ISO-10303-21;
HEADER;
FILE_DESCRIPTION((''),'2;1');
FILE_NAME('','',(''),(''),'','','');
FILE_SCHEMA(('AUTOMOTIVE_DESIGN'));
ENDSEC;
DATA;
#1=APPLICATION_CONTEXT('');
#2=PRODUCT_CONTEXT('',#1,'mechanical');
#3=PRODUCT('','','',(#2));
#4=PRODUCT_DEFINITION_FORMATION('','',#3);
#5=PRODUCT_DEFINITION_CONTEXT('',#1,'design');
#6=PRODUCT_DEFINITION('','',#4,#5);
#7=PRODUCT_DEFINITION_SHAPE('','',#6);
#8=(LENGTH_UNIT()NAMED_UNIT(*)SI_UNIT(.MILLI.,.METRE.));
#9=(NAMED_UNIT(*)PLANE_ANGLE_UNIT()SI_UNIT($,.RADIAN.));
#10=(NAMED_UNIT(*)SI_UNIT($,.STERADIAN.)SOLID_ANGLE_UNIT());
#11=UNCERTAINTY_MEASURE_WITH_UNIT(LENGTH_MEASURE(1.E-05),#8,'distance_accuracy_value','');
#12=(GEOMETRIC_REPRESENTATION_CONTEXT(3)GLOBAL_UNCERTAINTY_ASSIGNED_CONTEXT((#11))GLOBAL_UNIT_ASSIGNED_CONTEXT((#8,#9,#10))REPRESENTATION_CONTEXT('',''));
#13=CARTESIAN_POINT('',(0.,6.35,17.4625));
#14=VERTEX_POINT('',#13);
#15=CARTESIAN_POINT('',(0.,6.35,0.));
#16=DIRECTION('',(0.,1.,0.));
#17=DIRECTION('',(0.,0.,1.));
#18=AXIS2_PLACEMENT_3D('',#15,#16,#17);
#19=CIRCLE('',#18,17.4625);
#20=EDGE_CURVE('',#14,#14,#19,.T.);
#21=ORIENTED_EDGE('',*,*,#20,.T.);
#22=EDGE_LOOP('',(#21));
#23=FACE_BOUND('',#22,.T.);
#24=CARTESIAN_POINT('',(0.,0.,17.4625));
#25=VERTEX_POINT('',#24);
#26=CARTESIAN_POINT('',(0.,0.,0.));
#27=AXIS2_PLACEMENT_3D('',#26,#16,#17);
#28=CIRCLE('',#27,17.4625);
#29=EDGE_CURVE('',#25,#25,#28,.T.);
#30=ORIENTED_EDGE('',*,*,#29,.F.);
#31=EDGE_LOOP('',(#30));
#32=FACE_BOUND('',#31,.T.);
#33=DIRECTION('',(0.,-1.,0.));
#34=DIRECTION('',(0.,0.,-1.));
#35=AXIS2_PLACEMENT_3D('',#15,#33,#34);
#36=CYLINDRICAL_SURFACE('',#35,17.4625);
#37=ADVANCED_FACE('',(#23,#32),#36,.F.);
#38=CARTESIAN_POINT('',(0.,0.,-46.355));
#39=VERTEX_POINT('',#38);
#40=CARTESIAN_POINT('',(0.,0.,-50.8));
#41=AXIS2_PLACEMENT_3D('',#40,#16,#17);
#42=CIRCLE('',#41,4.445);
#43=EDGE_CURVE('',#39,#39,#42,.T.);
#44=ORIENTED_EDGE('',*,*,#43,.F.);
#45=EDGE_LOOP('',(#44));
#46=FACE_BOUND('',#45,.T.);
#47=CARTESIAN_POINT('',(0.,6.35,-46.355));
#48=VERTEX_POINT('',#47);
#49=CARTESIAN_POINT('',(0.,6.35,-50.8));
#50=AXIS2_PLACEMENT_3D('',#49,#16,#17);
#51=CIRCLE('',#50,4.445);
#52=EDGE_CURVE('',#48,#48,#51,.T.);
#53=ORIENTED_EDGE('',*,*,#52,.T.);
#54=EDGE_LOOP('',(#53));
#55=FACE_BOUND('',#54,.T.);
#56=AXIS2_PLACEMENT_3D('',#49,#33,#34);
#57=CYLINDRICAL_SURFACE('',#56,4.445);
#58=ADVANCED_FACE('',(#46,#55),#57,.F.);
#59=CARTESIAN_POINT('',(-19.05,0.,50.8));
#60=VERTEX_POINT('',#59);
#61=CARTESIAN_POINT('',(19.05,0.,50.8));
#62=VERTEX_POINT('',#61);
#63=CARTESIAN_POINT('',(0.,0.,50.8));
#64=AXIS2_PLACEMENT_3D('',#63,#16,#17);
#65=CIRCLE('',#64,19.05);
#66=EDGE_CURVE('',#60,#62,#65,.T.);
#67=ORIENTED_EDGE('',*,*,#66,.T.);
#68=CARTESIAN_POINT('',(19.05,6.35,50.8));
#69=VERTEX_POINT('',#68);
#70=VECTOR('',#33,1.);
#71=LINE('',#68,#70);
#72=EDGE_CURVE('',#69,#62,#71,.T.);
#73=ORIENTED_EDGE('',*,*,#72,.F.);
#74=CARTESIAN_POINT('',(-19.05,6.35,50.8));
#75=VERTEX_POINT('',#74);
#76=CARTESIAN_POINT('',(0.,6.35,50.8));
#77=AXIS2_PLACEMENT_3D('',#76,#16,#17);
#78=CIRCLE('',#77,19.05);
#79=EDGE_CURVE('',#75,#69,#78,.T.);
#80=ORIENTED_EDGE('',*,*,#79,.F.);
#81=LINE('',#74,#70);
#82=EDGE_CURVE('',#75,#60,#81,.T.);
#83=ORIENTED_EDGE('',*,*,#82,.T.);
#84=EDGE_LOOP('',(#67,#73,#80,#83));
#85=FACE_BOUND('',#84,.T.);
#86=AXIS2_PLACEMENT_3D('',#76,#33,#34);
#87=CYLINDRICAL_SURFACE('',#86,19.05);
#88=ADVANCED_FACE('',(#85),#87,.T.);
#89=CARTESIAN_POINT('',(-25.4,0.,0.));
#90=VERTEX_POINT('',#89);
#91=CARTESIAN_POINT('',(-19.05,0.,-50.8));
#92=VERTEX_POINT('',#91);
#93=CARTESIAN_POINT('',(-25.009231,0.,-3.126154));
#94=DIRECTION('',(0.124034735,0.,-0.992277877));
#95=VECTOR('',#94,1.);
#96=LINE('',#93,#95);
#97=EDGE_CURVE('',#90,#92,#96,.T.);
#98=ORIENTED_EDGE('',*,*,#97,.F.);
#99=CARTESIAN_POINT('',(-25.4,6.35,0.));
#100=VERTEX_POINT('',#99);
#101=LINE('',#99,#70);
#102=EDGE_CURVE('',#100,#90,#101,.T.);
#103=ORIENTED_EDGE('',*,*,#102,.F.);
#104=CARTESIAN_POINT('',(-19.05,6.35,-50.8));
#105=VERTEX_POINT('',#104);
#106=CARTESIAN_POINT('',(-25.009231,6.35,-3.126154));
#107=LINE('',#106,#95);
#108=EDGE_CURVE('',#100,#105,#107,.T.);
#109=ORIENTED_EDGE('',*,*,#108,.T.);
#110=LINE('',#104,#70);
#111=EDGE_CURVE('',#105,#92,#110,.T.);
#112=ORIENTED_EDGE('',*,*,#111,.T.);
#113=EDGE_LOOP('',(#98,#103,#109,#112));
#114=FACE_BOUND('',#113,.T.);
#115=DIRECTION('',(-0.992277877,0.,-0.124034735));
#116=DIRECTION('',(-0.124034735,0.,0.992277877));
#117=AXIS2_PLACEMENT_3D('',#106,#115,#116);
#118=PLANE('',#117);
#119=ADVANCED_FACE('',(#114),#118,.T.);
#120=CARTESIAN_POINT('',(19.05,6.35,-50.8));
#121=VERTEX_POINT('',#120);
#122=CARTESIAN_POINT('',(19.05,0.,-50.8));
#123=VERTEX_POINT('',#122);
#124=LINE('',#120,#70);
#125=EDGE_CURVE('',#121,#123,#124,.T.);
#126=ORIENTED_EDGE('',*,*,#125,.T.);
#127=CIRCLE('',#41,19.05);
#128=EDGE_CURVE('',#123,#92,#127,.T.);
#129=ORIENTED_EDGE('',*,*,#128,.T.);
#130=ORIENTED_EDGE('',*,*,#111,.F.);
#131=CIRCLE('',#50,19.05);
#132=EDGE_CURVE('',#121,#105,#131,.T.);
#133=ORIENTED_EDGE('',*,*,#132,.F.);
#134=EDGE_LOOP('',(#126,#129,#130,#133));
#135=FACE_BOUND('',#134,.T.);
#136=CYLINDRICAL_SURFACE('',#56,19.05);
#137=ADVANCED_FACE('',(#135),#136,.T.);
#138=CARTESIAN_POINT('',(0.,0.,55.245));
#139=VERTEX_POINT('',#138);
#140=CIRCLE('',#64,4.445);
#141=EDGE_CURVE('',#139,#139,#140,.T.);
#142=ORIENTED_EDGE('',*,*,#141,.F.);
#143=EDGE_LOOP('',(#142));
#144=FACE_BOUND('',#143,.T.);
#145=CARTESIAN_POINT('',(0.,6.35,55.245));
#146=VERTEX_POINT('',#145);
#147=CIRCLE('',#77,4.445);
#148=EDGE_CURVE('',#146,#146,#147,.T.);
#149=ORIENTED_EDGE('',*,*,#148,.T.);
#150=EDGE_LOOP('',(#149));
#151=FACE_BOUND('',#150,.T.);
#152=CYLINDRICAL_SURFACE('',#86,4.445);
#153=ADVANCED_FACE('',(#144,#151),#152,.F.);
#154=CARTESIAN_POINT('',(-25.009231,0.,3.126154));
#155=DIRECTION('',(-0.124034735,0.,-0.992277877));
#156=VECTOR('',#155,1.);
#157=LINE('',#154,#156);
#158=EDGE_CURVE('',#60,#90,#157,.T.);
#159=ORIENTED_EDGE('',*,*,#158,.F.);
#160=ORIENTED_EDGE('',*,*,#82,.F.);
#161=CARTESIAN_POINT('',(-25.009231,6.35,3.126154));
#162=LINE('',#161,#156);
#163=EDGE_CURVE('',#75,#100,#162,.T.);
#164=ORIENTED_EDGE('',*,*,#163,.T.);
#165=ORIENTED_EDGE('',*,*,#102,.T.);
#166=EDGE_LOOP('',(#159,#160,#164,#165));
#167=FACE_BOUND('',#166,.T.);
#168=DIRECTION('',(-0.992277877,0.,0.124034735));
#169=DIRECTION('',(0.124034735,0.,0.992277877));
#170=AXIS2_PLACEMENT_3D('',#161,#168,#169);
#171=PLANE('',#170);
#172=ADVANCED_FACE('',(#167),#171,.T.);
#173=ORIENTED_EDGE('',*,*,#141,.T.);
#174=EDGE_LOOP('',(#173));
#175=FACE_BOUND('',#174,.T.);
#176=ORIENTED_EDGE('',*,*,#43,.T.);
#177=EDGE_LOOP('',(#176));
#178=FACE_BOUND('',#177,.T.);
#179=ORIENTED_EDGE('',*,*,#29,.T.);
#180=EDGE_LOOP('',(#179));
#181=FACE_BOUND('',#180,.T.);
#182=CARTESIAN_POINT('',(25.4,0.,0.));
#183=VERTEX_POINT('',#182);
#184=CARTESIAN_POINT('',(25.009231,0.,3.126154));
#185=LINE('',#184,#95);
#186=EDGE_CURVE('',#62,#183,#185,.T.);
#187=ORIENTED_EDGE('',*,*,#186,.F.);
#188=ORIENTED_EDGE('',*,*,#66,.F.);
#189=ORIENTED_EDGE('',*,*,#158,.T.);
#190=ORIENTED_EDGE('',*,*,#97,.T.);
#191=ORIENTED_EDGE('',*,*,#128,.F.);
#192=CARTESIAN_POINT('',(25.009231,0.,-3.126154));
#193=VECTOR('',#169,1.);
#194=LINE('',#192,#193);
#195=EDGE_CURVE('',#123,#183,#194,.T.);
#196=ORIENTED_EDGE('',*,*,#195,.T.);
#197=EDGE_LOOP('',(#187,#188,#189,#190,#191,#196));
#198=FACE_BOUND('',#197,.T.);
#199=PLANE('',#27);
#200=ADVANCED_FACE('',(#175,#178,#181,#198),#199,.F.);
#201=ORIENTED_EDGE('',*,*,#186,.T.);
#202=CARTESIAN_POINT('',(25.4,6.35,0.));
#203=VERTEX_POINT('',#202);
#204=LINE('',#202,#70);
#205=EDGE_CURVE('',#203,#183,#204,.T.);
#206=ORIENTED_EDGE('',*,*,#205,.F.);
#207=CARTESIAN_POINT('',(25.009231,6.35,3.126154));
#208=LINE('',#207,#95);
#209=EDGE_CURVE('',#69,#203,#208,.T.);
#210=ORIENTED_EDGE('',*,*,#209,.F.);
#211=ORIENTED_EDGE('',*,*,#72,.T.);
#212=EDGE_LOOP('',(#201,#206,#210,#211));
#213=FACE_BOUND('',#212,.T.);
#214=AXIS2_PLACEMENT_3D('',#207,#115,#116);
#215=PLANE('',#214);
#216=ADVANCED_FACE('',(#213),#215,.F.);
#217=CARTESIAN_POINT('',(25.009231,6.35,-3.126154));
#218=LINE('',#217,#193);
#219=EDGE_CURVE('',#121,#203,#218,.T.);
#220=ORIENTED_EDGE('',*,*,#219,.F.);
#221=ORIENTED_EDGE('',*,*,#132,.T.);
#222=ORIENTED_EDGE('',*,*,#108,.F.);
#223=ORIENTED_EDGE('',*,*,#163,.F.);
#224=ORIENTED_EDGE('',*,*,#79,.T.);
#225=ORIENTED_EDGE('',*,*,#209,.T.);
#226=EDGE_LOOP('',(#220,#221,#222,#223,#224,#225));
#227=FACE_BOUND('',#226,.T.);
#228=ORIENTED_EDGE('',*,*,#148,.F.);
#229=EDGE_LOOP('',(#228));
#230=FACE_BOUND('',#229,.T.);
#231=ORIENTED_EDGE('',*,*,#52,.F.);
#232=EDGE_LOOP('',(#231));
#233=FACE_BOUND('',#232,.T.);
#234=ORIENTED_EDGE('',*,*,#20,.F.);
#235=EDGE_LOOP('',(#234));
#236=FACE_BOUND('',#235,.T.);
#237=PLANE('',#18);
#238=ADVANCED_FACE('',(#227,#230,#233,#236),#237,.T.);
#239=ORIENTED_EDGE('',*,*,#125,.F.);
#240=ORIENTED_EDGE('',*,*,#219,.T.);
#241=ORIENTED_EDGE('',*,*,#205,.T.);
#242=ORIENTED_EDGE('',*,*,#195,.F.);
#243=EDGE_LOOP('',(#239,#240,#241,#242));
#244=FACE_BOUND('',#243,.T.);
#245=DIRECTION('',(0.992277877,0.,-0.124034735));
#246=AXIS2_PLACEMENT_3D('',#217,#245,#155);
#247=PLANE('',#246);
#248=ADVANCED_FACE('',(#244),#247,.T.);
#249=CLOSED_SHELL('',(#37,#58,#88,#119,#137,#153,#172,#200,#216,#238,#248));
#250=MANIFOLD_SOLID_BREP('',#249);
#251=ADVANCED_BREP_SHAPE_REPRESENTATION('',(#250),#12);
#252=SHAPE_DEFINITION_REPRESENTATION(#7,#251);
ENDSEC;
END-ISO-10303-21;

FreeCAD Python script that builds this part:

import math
import FreeCAD as App
import Part
import Sketcher
from FreeCAD import Vector
Q = App.Units.Quantity

doc = App.newDocument("Part")
body = doc.addObject("PartDesign::Body", "Body")

# Sketch on XZ plane
sketch1 = body.newObject("Sketcher::SketchObject", "Sketch")
sketch1.AttachmentSupport = (doc.getObject("XZ_Plane"), [""])
sketch1.MapMode = "FlatFace"
sketch1.addGeometry([
    Part.ArcOfCircle(Part.Circle(Vector(0, 50.8, 0), Vector(0, 0, 1), 19.05), math.radians(0), math.radians(180)),  # 0
    Part.LineSegment(Vector(19.05, 50.8, 0), Vector(25.4, 0, 0)),  # 1
    Part.LineSegment(Vector(25.4, 0, 0), Vector(19.05, -50.8, 0)),  # 2
    Part.ArcOfCircle(Part.Circle(Vector(0, -50.8, 0), Vector(0, 0, 1), 19.05), math.radians(180), math.radians(360)),  # 3
    Part.LineSegment(Vector(-19.05, -50.8, 0), Vector(-25.4, 0, 0)),  # 4
    Part.LineSegment(Vector(-25.4, 0, 0), Vector(-19.05, 50.8, 0)),  # 5
    Part.Circle(Vector(0, 50.8, 0), Vector(0, 0, 1), 4.445),  # 6
    Part.Circle(Vector(0, 0, 0), Vector(0, 0, 1), 17.4625),  # 7
    Part.Circle(Vector(0, -50.8, 0), Vector(0, 0, 1), 4.445),  # 8
], False)
sketch1.addConstraint([
    Sketcher.Constraint("Coincident", 0, 1, 1, 1),
    Sketcher.Constraint("Coincident", 1, 2, 2, 1),
    Sketcher.Constraint("Coincident", 2, 2, 3, 2),
    Sketcher.Constraint("Coincident", 3, 1, 4, 1),
    Sketcher.Constraint("Coincident", 4, 2, 5, 1),
    Sketcher.Constraint("Coincident", 5, 2, 0, 2),
    Sketcher.Constraint("Coincident", 7, 3, -1, 1),
    Sketcher.Constraint("Coincident", 6, 3, 0, 3),
    Sketcher.Constraint("Coincident", 8, 3, 3, 3),
    Sketcher.Constraint("Equal", 0, 3),
    Sketcher.Constraint("Equal", 6, 8),
    Sketcher.Constraint("Symmetric", 0, 3, 3, 3, -1, 1),
    Sketcher.Constraint("Symmetric", 1, 2, 4, 2, -1, 1),
    Sketcher.Constraint("Symmetric", 2, 2, 3, 1, -2),
    Sketcher.Constraint("PointOnObject", 1, 2, -1),
    Sketcher.Constraint("Parallel", 1, 4),
    Sketcher.Constraint("Parallel", 2, 5),
    Sketcher.Constraint("Horizontal", 6, 3, 0, 1),
    Sketcher.Constraint("Diameter", 6, Q("0.35 in")),
    Sketcher.Constraint("Radius", 0, Q("0.75 in")),
    Sketcher.Constraint("Diameter", 7, Q("1.375 in")),
    Sketcher.Constraint("DistanceY", -1, 1, 0, 3, Q("2 in")),
    Sketcher.Constraint("DistanceX", -1, 1, 1, 2, Q("1 in")),
])
pad1 = body.newObject("PartDesign::Pad", "Pad")
pad1.Profile = sketch1
pad1.Length = Q("0.25 in")
pad1.Reversed = True

doc.recompute()
